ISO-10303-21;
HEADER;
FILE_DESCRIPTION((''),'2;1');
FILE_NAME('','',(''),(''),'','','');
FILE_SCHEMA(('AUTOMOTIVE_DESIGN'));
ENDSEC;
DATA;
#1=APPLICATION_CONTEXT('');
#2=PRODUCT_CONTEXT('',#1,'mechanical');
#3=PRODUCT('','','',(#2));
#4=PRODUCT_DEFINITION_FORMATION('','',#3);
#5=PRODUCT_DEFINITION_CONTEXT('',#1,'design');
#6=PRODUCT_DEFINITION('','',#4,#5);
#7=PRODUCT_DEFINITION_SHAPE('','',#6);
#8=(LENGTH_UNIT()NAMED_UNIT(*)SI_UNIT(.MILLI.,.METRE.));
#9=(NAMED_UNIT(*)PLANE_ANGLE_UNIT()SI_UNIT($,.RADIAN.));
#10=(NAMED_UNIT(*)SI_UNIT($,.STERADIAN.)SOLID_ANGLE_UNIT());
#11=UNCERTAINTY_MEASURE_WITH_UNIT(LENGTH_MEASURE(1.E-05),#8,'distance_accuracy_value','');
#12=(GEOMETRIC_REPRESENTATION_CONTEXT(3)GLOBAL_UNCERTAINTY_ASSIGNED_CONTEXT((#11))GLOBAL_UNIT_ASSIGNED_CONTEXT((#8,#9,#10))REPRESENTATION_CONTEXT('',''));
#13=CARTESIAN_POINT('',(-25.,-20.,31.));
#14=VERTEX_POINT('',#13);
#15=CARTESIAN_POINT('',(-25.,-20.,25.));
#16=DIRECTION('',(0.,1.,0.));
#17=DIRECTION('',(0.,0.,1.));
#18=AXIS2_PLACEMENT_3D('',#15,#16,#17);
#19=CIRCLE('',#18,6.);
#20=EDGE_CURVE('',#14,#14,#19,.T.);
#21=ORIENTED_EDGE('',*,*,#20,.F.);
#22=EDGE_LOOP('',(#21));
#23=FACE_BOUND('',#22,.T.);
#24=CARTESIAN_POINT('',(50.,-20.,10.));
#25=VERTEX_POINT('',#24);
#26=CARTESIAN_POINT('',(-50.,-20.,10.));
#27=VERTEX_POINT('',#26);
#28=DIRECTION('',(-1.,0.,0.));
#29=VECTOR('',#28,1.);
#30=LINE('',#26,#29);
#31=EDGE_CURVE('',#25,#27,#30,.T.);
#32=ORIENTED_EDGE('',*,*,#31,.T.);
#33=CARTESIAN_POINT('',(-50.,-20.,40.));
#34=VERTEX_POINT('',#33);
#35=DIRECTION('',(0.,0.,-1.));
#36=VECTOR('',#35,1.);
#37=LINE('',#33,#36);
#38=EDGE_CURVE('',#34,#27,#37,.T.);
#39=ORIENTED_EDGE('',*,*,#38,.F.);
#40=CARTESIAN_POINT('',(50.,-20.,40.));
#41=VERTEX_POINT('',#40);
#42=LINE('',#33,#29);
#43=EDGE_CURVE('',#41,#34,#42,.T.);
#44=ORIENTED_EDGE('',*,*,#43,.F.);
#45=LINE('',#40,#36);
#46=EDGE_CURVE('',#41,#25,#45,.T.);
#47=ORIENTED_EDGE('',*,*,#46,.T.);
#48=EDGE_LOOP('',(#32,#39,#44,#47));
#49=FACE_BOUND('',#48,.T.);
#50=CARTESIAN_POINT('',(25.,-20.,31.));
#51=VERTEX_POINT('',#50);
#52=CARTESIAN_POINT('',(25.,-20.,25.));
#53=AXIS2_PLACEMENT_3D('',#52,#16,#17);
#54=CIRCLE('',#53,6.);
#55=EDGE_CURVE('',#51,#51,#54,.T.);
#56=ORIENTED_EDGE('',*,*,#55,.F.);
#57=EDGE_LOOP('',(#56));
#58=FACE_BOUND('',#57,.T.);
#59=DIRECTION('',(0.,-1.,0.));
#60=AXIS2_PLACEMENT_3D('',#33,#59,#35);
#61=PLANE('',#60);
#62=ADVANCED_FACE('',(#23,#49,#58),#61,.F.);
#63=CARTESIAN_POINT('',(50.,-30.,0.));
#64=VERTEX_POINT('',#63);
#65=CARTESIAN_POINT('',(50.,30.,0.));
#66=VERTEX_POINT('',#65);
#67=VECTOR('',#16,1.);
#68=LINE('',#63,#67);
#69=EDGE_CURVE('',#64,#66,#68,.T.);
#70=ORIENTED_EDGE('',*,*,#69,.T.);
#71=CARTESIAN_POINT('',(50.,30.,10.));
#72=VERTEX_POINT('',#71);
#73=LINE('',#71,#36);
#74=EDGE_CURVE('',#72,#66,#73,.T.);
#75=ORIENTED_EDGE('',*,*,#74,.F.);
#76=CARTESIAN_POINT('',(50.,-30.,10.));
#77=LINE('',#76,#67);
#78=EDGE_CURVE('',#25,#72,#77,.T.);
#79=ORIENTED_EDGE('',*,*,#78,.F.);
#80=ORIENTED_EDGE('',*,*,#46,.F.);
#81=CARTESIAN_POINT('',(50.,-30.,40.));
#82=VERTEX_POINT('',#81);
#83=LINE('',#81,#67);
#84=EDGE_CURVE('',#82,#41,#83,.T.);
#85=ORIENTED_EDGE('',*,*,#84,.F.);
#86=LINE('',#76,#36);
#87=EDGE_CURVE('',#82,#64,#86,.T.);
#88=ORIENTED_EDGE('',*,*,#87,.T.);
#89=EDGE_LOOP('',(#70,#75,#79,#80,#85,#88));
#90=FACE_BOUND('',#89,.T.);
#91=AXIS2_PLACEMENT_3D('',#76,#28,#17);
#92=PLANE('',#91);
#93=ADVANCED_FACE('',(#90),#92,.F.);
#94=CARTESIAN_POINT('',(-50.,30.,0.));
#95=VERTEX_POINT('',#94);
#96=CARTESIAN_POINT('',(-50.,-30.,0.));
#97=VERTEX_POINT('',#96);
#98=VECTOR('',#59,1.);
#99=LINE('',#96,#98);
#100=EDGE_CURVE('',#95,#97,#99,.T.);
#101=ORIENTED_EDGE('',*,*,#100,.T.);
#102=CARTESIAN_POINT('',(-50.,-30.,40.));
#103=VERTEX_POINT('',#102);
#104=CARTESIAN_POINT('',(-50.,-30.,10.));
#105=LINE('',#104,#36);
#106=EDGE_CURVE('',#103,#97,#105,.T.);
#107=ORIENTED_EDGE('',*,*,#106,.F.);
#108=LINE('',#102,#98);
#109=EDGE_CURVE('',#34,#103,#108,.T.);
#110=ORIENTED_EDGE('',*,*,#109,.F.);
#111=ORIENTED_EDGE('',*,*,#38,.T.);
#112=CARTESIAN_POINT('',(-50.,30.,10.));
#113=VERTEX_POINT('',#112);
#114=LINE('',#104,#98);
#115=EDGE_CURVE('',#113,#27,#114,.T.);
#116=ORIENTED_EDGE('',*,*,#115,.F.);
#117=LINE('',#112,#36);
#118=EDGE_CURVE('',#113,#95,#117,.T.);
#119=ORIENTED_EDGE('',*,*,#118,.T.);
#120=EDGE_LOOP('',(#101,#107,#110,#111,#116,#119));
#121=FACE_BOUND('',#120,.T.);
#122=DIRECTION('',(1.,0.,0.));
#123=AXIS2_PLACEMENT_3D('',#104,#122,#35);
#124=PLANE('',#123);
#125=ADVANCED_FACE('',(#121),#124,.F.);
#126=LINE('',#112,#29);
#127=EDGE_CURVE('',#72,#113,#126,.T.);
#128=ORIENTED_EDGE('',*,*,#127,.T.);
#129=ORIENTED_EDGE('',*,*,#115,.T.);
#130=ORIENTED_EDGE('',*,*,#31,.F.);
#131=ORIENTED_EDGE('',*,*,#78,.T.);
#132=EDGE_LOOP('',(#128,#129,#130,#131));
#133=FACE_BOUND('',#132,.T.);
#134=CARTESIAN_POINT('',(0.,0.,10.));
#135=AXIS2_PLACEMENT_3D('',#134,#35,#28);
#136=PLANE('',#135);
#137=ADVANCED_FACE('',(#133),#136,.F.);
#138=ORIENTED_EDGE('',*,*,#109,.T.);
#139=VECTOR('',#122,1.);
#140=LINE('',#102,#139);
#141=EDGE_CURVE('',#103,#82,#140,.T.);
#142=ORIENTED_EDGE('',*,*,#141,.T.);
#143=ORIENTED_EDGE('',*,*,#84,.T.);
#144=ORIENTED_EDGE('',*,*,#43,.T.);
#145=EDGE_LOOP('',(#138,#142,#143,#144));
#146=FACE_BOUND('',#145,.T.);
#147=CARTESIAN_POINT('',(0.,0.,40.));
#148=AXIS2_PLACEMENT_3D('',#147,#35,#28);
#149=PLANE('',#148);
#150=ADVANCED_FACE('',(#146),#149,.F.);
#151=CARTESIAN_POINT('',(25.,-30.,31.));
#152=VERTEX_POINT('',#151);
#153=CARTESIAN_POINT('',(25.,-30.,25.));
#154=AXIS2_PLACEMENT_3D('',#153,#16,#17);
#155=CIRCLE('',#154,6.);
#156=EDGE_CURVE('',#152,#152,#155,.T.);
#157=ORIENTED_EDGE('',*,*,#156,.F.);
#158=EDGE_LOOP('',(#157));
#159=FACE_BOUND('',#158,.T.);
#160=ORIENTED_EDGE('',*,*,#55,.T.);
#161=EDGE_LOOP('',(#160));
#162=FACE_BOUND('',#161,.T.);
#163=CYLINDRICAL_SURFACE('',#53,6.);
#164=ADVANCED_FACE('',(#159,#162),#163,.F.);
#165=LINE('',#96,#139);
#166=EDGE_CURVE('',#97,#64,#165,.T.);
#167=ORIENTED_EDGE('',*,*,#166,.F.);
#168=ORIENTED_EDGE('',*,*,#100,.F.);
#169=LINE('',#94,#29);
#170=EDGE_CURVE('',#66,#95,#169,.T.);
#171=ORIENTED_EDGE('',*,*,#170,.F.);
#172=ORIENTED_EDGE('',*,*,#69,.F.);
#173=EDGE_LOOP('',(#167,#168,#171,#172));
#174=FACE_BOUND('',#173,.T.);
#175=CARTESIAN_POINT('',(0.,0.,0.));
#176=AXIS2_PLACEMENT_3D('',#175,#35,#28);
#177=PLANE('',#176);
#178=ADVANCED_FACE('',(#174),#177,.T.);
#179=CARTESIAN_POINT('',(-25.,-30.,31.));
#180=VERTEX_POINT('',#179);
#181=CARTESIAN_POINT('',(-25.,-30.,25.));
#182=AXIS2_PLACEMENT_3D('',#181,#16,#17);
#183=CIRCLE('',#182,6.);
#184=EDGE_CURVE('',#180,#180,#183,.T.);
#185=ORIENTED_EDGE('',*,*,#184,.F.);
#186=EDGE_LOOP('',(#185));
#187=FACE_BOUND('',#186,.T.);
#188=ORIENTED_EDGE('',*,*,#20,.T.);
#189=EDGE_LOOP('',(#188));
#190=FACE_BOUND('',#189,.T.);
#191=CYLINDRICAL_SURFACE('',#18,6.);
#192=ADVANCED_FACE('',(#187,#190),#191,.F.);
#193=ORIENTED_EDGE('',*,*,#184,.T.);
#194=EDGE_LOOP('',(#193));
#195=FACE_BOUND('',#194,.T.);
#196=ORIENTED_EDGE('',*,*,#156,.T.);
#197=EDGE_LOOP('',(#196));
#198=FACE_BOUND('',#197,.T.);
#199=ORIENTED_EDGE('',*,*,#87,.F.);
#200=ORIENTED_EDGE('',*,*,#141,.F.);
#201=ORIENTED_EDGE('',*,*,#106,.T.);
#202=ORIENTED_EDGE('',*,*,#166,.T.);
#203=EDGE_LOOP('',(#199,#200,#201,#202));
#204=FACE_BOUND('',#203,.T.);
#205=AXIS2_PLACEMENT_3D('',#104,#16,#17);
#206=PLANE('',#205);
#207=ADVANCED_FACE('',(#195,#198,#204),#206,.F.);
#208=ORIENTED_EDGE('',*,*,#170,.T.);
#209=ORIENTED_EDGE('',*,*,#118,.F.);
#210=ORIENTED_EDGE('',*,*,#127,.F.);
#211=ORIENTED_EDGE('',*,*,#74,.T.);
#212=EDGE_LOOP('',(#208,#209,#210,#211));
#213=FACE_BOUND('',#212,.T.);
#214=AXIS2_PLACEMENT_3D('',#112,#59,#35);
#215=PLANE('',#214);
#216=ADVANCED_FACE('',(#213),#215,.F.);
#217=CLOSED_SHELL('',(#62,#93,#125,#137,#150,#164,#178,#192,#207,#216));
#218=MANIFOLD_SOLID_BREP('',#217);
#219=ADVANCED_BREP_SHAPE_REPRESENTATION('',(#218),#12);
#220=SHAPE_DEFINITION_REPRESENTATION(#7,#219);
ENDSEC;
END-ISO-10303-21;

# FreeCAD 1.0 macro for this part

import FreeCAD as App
import Part
import Sketcher
from FreeCAD import Vector


def add_polygon(sketch, points):
    """Adds a closed chain of lines whose ends are joined by coincident constraints."""
    first, n = sketch.GeometryCount, len(points)
    for a, b in zip(points, points[1:] + points[:1]):
        sketch.addGeometry(Part.LineSegment(App.Vector(*a, 0), App.Vector(*b, 0)), False)
    for i in range(n):
        sketch.addConstraint(Sketcher.Constraint("Coincident", first + i, 2, first + (i + 1) % n, 1))

doc = App.newDocument("Part")
body = doc.addObject("PartDesign::Body", "Body")

sketch1 = body.newObject("Sketcher::SketchObject", "Sketch")
sketch1.AttachmentSupport = (doc.getObject("XY_Plane"), [""])
sketch1.MapMode = "FlatFace"
add_polygon(sketch1, [(-50, 30), (-50, -30), (50, -30), (50, 30)])
sketch1.addConstraint([
    Sketcher.Constraint("Vertical", 0),
    Sketcher.Constraint("Horizontal", 1),
    Sketcher.Constraint("Vertical", 2),
    Sketcher.Constraint("Horizontal", 3),
    Sketcher.Constraint("Symmetric", 0, 2, 2, 2, -1, 1),
    Sketcher.Constraint("DistanceX", 1, 1, 1, 2, 100.0),
    Sketcher.Constraint("DistanceY", 0, 2, 0, 1, 60.0),
])
pad1 = body.newObject("PartDesign::Pad", "Pad")
pad1.Profile = sketch1
pad1.Length = 10

sketch2 = body.newObject("Sketcher::SketchObject", "Sketch001")
sketch2.AttachmentSupport = (doc.getObject("XY_Plane"), [""])
sketch2.MapMode = "FlatFace"
sketch2.AttachmentOffset = App.Placement(Vector(0, 0, 10), App.Rotation())
add_polygon(sketch2, [(-50, -20), (-50, -30), (50, -30), (50, -20)])
sketch2.addConstraint([
    Sketcher.Constraint("Vertical", 0),
    Sketcher.Constraint("Horizontal", 1),
    Sketcher.Constraint("Vertical", 2),
    Sketcher.Constraint("Horizontal", 3),
    Sketcher.Constraint("DistanceX", 1, 1, 1, 2, 100.0),
    Sketcher.Constraint("DistanceY", 0, 2, 0, 1, 10.0),
    Sketcher.Constraint("DistanceX", 0, 2, -1, 1, 50.0),
    Sketcher.Constraint("DistanceY", 0, 2, -1, 1, 30.0),
])
pad2 = body.newObject("PartDesign::Pad", "Pad001")
pad2.Profile = sketch2
pad2.Length = 30

sketch3 = body.newObject("Sketcher::SketchObject", "Sketch002")
sketch3.AttachmentSupport = (doc.getObject("XZ_Plane"), [""])
sketch3.MapMode = "FlatFace"
sketch3.AttachmentOffset = App.Placement(Vector(0, 0, 20), App.Rotation())
sketch3.addGeometry(Part.Circle(Vector(-25, 25, 0), Vector(0, 0, 1), 6), False)
sketch3.addConstraint([
    Sketcher.Constraint("Diameter", 0, 12.0),
    Sketcher.Constraint("DistanceX", 0, 3, -1, 1, 25.0),
    Sketcher.Constraint("DistanceY", -1, 1, 0, 3, 25.0),
])
doc.recompute()
hole = body.newObject("PartDesign::Hole", "Hole")
hole.Profile = sketch3
hole.ThreadType = "None"
hole.Diameter = 12
hole.DepthType = "ThroughAll"
hole.Reversed = True
doc.recompute()

linearpattern = body.newObject("PartDesign::LinearPattern", "LinearPattern")
linearpattern.Originals = [hole]
linearpattern.Direction = (doc.getObject("X_Axis"), [""])
linearpattern.Mode = "offset"
linearpattern.Offset = 50
linearpattern.Occurrences = 2
body.Tip = linearpattern

doc.recompute()
